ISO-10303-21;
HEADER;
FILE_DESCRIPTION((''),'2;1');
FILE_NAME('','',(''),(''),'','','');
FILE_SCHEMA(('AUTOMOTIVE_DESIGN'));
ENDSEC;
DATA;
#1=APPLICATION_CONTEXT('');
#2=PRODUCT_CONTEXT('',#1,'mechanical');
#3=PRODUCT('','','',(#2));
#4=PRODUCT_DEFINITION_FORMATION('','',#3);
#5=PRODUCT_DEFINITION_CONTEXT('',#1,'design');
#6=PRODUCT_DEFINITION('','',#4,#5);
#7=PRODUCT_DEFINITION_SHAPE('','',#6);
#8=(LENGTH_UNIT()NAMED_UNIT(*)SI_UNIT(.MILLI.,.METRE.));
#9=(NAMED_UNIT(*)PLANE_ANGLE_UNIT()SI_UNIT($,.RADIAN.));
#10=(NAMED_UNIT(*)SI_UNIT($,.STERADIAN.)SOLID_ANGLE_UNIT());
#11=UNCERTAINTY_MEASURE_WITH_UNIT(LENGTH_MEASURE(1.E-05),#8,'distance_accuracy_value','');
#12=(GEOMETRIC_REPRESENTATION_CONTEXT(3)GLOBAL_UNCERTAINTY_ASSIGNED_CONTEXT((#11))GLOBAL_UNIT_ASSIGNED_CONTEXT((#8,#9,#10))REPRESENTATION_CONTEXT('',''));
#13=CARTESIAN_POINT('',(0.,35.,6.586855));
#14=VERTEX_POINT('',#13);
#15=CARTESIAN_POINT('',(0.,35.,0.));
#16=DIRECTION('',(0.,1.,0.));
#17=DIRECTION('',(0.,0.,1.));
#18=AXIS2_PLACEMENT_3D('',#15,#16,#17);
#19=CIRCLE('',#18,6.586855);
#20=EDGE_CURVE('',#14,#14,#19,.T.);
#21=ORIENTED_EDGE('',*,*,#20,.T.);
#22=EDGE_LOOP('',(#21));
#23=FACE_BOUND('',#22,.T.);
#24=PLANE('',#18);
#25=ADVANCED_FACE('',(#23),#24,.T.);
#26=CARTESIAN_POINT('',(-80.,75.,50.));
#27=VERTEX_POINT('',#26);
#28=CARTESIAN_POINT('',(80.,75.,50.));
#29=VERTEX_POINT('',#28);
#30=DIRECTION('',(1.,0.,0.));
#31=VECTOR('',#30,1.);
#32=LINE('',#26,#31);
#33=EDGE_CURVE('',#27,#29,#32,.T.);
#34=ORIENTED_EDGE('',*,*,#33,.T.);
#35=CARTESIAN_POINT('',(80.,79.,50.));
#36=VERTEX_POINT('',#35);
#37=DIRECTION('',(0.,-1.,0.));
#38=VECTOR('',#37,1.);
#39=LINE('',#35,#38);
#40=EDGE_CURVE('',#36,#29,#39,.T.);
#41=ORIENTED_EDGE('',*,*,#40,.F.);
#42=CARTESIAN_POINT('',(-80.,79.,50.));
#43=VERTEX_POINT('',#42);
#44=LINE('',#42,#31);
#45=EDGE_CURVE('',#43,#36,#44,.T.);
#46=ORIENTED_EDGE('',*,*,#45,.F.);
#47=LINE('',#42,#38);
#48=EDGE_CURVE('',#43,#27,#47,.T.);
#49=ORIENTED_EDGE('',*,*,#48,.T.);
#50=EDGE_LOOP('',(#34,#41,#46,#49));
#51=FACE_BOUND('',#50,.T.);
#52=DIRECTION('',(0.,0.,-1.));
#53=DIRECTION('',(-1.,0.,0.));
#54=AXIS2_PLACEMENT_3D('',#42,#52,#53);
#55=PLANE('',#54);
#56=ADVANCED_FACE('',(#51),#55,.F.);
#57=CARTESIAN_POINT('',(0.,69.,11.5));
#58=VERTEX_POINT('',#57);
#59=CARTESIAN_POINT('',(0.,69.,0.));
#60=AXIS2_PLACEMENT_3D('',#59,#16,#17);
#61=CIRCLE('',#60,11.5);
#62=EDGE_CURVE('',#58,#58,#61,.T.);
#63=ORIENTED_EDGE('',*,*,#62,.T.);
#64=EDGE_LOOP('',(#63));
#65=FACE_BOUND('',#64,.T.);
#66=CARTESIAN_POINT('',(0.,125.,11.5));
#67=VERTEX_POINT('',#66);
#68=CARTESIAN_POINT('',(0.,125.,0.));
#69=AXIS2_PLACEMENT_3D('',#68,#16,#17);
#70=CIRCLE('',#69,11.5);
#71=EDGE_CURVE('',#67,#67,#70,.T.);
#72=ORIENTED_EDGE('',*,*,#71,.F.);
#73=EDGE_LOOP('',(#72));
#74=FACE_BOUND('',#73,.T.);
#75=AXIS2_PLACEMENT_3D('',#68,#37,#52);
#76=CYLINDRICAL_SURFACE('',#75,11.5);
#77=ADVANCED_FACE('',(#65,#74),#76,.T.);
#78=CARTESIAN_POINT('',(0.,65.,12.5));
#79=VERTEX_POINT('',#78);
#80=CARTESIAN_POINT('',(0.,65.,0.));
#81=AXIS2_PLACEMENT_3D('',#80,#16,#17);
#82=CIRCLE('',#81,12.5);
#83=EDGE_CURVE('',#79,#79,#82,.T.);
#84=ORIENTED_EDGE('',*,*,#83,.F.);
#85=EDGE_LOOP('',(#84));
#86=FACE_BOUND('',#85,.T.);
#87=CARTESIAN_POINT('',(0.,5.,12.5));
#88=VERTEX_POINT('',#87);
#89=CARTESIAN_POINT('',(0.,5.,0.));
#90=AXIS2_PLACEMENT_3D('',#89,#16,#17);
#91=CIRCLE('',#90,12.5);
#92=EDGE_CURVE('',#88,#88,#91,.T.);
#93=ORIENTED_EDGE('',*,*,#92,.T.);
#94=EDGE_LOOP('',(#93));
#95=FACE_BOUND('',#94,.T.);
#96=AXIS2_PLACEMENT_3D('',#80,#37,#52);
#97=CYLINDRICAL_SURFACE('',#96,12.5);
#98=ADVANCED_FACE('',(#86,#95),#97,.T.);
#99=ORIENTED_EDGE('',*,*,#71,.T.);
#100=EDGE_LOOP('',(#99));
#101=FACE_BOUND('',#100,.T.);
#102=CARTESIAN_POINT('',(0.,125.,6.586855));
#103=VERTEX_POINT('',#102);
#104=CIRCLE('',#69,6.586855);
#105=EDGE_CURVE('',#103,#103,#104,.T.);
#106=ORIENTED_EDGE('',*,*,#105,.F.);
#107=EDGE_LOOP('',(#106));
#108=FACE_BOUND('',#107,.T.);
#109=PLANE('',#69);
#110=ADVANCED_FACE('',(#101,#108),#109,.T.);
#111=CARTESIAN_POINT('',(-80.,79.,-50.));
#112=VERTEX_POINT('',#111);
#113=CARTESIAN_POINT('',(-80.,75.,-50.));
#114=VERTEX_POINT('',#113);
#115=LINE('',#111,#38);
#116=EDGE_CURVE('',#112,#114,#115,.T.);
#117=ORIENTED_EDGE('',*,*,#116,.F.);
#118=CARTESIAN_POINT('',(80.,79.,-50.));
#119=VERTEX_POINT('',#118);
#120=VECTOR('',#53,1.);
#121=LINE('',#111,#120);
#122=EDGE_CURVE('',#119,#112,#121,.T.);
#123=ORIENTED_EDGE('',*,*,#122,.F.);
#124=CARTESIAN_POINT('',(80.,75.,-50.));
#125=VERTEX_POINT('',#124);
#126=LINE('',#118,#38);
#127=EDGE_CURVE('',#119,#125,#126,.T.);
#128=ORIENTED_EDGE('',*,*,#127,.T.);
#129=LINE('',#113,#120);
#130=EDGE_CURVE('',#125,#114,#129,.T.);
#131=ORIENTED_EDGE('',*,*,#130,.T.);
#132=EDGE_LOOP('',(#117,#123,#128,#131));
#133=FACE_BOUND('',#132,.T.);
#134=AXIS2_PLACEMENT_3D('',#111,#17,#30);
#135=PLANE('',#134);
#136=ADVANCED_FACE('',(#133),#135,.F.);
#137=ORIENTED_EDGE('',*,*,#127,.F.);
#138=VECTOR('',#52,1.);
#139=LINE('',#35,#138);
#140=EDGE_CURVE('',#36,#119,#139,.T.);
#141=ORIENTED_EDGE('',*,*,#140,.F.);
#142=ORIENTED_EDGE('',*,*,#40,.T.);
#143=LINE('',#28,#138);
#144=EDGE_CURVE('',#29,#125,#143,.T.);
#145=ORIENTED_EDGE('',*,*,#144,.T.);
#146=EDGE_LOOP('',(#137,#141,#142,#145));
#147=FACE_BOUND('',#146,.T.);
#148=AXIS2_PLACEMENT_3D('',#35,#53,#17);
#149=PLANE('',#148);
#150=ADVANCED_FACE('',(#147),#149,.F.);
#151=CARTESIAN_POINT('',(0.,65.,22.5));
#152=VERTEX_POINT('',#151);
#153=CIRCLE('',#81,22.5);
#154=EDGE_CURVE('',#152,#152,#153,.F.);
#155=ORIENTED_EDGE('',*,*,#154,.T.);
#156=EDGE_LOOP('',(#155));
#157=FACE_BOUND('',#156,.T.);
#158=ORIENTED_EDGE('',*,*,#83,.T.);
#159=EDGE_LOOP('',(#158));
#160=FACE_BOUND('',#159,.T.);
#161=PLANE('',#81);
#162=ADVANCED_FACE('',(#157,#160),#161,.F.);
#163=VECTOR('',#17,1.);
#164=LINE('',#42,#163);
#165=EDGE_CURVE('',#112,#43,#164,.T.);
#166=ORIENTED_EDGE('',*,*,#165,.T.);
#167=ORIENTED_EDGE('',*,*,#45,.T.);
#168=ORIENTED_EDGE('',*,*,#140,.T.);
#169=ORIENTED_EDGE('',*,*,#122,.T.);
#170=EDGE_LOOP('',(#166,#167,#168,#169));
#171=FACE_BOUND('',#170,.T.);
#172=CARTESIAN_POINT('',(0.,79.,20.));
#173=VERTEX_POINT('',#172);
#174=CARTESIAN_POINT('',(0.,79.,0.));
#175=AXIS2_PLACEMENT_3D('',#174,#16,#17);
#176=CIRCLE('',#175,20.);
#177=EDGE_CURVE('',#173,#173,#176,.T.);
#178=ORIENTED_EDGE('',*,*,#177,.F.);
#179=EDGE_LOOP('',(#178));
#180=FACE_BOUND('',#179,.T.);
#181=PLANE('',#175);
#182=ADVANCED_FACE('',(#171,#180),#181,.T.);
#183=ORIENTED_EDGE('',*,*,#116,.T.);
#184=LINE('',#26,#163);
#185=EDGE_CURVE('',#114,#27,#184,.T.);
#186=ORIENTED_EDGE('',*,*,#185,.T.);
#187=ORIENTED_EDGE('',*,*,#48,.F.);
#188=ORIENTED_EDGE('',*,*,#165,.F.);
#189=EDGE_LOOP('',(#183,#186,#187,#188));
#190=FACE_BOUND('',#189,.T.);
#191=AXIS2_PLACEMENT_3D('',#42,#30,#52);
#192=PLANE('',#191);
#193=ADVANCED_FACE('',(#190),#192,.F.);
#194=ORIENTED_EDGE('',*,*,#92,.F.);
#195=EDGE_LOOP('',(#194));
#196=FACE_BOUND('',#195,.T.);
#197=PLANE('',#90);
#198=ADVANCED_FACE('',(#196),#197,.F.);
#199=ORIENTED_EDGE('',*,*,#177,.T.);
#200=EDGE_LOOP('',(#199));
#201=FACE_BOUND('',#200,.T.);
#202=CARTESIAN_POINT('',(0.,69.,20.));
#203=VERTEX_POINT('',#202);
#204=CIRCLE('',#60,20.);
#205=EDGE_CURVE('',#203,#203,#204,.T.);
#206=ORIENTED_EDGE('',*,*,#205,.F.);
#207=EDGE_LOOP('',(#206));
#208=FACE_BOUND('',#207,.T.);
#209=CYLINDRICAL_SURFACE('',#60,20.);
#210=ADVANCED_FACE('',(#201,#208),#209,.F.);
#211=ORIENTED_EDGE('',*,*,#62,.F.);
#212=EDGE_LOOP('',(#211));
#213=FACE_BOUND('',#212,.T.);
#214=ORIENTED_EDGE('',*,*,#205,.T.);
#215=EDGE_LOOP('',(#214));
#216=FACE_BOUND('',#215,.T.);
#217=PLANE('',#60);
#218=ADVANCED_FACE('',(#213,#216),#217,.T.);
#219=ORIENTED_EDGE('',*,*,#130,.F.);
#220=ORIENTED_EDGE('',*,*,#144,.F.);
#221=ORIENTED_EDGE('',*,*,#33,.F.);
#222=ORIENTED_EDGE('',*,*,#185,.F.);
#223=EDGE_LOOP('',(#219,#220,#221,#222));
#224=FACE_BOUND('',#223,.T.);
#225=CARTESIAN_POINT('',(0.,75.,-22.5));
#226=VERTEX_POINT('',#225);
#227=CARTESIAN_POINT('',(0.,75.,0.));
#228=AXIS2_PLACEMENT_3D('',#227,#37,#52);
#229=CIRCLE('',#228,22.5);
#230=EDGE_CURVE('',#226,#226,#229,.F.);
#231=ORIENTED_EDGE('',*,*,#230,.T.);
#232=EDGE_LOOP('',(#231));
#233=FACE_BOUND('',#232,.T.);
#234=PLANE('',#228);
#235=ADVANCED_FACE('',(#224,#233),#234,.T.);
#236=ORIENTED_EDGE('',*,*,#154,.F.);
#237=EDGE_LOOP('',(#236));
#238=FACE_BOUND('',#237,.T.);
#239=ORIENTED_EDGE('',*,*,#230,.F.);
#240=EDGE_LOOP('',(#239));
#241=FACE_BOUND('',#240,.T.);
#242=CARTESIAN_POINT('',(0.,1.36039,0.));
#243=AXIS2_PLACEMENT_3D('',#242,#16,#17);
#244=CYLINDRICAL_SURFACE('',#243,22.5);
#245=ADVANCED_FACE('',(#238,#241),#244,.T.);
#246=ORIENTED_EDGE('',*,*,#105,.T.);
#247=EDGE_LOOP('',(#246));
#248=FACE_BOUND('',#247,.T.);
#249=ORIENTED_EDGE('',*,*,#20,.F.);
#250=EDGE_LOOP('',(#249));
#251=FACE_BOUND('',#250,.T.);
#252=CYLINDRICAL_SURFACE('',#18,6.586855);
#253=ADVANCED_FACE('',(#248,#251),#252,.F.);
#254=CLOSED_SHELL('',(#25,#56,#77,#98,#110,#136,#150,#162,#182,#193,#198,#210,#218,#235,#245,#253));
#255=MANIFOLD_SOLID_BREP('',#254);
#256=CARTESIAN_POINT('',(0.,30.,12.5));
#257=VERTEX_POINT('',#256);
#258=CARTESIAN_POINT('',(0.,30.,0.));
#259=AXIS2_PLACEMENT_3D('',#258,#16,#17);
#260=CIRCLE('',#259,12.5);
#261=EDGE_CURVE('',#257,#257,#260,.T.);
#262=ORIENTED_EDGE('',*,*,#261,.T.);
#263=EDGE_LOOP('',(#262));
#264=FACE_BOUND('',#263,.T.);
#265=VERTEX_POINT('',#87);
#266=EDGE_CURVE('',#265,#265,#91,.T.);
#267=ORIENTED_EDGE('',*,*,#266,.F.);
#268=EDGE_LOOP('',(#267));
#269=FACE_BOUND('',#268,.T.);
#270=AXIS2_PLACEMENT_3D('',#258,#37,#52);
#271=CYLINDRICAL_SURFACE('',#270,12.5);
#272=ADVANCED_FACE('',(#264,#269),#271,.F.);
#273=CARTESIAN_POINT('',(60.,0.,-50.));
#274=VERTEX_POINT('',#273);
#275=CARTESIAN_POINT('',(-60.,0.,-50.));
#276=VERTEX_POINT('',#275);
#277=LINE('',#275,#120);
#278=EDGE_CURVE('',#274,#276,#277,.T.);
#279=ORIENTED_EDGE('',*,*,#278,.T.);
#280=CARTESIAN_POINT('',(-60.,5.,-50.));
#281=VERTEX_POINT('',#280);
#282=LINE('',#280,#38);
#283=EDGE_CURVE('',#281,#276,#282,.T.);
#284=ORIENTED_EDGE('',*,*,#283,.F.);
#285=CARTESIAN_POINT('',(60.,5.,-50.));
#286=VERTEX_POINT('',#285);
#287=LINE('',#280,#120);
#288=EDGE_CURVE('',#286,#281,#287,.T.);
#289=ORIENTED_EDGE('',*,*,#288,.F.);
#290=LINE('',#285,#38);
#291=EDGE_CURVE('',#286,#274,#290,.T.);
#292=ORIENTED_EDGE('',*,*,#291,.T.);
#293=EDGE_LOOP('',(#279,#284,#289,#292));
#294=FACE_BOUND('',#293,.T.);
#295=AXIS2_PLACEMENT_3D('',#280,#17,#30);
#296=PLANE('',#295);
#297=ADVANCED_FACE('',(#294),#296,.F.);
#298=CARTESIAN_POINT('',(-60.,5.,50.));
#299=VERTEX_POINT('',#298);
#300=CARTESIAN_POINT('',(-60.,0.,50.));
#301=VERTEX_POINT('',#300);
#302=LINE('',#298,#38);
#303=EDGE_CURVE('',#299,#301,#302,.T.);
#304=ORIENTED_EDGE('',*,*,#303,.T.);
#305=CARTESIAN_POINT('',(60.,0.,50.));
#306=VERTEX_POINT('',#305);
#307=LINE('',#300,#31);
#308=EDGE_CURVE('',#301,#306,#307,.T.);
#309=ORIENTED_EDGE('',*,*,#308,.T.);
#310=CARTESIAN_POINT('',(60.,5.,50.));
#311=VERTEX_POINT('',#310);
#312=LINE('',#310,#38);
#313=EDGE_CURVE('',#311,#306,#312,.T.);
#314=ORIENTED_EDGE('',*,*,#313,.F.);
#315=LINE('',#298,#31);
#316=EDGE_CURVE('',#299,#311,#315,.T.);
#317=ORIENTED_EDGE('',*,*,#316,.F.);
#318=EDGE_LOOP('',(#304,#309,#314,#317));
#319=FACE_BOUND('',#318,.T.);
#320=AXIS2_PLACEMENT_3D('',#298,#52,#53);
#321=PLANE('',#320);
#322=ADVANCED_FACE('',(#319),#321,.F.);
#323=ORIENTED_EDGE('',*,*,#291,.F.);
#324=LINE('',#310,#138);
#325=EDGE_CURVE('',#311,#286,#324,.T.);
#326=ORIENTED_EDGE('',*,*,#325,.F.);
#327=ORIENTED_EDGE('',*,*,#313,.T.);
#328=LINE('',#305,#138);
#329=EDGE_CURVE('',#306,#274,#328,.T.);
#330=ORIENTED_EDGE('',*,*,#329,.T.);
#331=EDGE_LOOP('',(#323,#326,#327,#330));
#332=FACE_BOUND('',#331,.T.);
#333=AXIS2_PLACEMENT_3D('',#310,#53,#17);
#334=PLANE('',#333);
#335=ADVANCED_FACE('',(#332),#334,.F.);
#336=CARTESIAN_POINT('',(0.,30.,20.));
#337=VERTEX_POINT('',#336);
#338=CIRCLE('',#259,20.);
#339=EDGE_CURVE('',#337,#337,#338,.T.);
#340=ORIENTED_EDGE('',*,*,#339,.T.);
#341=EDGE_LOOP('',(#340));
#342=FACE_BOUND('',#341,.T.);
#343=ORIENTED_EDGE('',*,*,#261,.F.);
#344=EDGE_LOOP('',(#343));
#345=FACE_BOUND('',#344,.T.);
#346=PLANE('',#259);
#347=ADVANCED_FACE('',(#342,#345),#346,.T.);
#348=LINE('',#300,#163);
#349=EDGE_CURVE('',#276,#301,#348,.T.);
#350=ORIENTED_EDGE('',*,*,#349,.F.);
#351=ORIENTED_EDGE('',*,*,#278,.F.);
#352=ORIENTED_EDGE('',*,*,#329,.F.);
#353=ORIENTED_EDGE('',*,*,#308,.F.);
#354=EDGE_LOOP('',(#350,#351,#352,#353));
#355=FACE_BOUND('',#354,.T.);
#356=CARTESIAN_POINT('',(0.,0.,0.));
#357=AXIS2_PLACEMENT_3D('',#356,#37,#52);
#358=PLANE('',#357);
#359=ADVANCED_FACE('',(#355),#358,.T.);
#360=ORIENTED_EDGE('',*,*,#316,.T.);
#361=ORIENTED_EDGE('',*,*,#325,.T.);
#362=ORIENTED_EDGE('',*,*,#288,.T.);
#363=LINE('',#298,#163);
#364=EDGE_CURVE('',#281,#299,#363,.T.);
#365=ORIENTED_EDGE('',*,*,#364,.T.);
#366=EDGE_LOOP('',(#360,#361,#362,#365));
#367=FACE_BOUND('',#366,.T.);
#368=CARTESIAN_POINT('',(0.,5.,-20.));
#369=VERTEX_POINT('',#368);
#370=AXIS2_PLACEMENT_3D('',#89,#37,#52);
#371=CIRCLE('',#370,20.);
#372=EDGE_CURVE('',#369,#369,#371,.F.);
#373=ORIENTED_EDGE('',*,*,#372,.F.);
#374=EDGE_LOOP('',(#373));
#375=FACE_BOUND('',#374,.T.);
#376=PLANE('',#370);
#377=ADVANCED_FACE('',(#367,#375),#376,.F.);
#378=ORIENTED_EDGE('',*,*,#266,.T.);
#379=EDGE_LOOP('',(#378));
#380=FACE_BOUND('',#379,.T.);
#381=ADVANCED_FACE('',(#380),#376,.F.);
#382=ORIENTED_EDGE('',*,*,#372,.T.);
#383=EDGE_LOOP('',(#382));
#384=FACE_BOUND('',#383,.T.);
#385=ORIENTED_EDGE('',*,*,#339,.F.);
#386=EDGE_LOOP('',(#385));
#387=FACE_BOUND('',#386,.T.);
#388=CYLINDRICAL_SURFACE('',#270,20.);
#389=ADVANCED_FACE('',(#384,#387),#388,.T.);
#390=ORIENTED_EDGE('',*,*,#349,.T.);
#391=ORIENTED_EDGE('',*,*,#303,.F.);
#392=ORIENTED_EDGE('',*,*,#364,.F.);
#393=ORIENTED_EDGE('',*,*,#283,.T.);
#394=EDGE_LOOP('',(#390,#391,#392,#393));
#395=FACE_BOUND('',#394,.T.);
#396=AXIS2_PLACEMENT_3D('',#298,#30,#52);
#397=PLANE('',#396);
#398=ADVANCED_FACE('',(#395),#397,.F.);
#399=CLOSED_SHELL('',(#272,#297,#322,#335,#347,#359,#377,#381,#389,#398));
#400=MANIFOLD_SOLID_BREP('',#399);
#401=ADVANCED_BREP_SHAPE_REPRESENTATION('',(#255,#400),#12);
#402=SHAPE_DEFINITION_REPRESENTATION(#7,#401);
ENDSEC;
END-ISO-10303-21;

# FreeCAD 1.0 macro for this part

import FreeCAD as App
import Part
import Sketcher

V = App.Vector
Q = App.Units.Quantity

doc = App.newDocument("Part")
body = doc.addObject("PartDesign::Body", "Body")

# Sketch on XZ plane
sketch1 = body.newObject("Sketcher::SketchObject", "Sketch")
sketch1.AttachmentSupport = (doc.getObject("XZ_Plane"), [""])
sketch1.MapMode = "FlatFace"
sketch1.addGeometry([
    Part.LineSegment(V(-60, -50, 0), V(-60, 50, 0)),
    Part.LineSegment(V(-60, 50, 0), V(60, 50, 0)),
    Part.LineSegment(V(60, 50, 0), V(60, -50, 0)),
    Part.LineSegment(V(60, -50, 0), V(-60, -50, 0)),
], False)
sketch1.addConstraint([
    Sketcher.Constraint("Coincident", 0, 2, 1, 1),
    Sketcher.Constraint("Coincident", 1, 2, 2, 1),
    Sketcher.Constraint("Coincident", 2, 2, 3, 1),
    Sketcher.Constraint("Coincident", 3, 2, 0, 1),
    Sketcher.Constraint("Vertical", 0),
    Sketcher.Constraint("Horizontal", 1),
    Sketcher.Constraint("Vertical", 2),
    Sketcher.Constraint("Horizontal", 3),
    Sketcher.Constraint("Symmetric", 0, 2, 2, 2, -1, 1),
    Sketcher.Constraint("DistanceX", 1, 1, 1, 2, Q("120 mm")),
    Sketcher.Constraint("DistanceY", 0, 1, 0, 2, Q("100 mm")),
])
pad1 = body.newObject("PartDesign::Pad", "Pad")
pad1.Profile = sketch1
pad1.Length = 5
pad1.Reversed = True

# Sketch on XZ plane
sketch2 = body.newObject("Sketcher::SketchObject", "Sketch001")
sketch2.AttachmentSupport = (doc.getObject("XZ_Plane"), [""])
sketch2.MapMode = "FlatFace"
sketch2.AttachmentOffset = App.Placement(V(0, 0, -5), App.Rotation())
sketch2.addGeometry([
    Part.Circle(V(0, 0, 0), V(0, 0, 1), 20),
    Part.Circle(V(0, 0, 0), V(0, 0, 1), 12),
], False)
sketch2.addConstraint([
    Sketcher.Constraint("Coincident", 0, 3, -1, 1),
    Sketcher.Constraint("Coincident", 1, 3, -1, 1),
    Sketcher.Constraint("Diameter", 0, Q("40 mm")),
    Sketcher.Constraint("Diameter", 1, Q("25 mm")),
])
pad2 = body.newObject("PartDesign::Pad", "Pad001")
pad2.Profile = sketch2
pad2.Length = 25
pad2.Reversed = True
body2 = doc.addObject("PartDesign::Body", "Body001")

# Sketch on XZ plane
sketch3 = body2.newObject("Sketcher::SketchObject", "Sketch002")
sketch3.AttachmentSupport = (doc.getObject("XZ_Plane001"), [""])
sketch3.MapMode = "FlatFace"
sketch3.AttachmentOffset = App.Placement(V(0, 0, -5), App.Rotation())
sketch3.addGeometry(Part.Circle(V(0, 0, 0), V(0, 0, 1), 12), False)
sketch3.addConstraint([
    Sketcher.Constraint("Coincident", 0, 3, -1, 1),
    Sketcher.Constraint("Diameter", 0, Q("25 mm")),
])
pad3 = body2.newObject("PartDesign::Pad", "Pad002")
pad3.Profile = sketch3
pad3.Length = 60
pad3.Reversed = True

# Sketch on XZ plane
sketch4 = body2.newObject("Sketcher::SketchObject", "Sketch003")
sketch4.AttachmentSupport = (doc.getObject("XZ_Plane001"), [""])
sketch4.MapMode = "FlatFace"
sketch4.AttachmentOffset = App.Placement(V(0, 0, -65), App.Rotation())
sketch4.addGeometry(Part.Circle(V(0, 0, 0), V(0, 0, 1), 7), False)
sketch4.addConstraint([
    Sketcher.Constraint("Coincident", 0, 3, -1, 1),
    Sketcher.Constraint("Diameter", 0, Q("13.173711 mm")),
])
pocket1 = body2.newObject("PartDesign::Pocket", "Pocket")
pocket1.Profile = sketch4
pocket1.Length = 30
pocket1.Reversed = True

# Sketch on XZ plane
sketch5 = body2.newObject("Sketcher::SketchObject", "Sketch004")
sketch5.AttachmentSupport = (doc.getObject("XZ_Plane001"), [""])
sketch5.MapMode = "FlatFace"
sketch5.AttachmentOffset = App.Placement(V(0, 0, -65), App.Rotation())
sketch5.addGeometry([
    Part.Circle(V(0, 0, 0), V(0, 0, 1), 12),
    Part.Circle(V(0, 0, 0), V(0, 0, 1), 7),
], False)
sketch5.addConstraint([
    Sketcher.Constraint("Coincident", 0, 3, -1, 1),
    Sketcher.Constraint("Coincident", 1, 3, -1, 1),
    Sketcher.Constraint("Diameter", 0, Q("23 mm")),
    Sketcher.Constraint("Diameter", 1, Q("13.173711 mm")),
])
pad4 = body2.newObject("PartDesign::Pad", "Pad003")
pad4.Profile = sketch5
pad4.Length = 60
pad4.Reversed = True
body3 = doc.addObject("PartDesign::Body", "Body002")

# Sketch on XZ plane
sketch6 = body3.newObject("Sketcher::SketchObject", "Sketch005")
sketch6.AttachmentSupport = (doc.getObject("XZ_Plane002"), [""])
sketch6.MapMode = "FlatFace"
sketch6.AttachmentOffset = App.Placement(V(0, 0, -75), App.Rotation())
sketch6.addGeometry([
    Part.LineSegment(V(-80, -50, 0), V(-80, 50, 0)),  # 0
    Part.LineSegment(V(-80, 50, 0), V(80, 50, 0)),  # 1
    Part.LineSegment(V(80, 50, 0), V(80, -50, 0)),  # 2
    Part.LineSegment(V(80, -50, 0), V(-80, -50, 0)),  # 3
    Part.Circle(V(0, 0, 0), V(0, 0, 1), 12),  # 4
], False)
sketch6.addConstraint([
    Sketcher.Constraint("Coincident", 0, 2, 1, 1),
    Sketcher.Constraint("Coincident", 1, 2, 2, 1),
    Sketcher.Constraint("Coincident", 2, 2, 3, 1),
    Sketcher.Constraint("Coincident", 3, 2, 0, 1),
    Sketcher.Constraint("Vertical", 0),
    Sketcher.Constraint("Horizontal", 1),
    Sketcher.Constraint("Vertical", 2),
    Sketcher.Constraint("Horizontal", 3),
    Sketcher.Constraint("Coincident", 4, 3, -1, 1),
    Sketcher.Constraint("Symmetric", 0, 2, 2, 2, -1, 1),
    Sketcher.Constraint("Diameter", 4, Q("25 mm")),
    Sketcher.Constraint("DistanceX", 1, 1, 1, 2, Q("160 mm")),
    Sketcher.Constraint("DistanceY", 0, 1, 0, 2, Q("100 mm")),
])
pad5 = body3.newObject("PartDesign::Pad", "Pad004")
pad5.Profile = sketch6
pad5.Length = 4
pad5.Reversed = True
body2.AllowCompound = True
doc.recompute()

boolean = body2.newObject("PartDesign::Boolean", "Boolean")
boolean.Type = "Fuse"
boolean.addObjects([body3])

# Sketch on XZ plane
sketch7 = body2.newObject("Sketcher::SketchObject", "Sketch006")
sketch7.AttachmentSupport = (doc.getObject("XZ_Plane001"), [""])
sketch7.MapMode = "FlatFace"
sketch7.AttachmentOffset = App.Placement(V(0, 0, -79), App.Rotation())
sketch7.addGeometry([
    Part.Circle(V(0, 0, 0), V(0, 0, 1), 22),
    Part.Circle(V(0, 0, 0), V(0, 0, 1), 12),
], False)
sketch7.addConstraint([
    Sketcher.Constraint("Coincident", 0, 3, -1, 1),
    Sketcher.Constraint("Coincident", 1, 3, -1, 1),
    Sketcher.Constraint("Diameter", 0, Q("45 mm")),
    Sketcher.Constraint("Diameter", 1, Q("23 mm")),
])
pad6 = body2.newObject("PartDesign::Pad", "Pad005")
pad6.Profile = sketch7
pad6.Length = 14

# Sketch on XZ plane
sketch8 = body2.newObject("Sketcher::SketchObject", "Sketch007")
sketch8.AttachmentSupport = (doc.getObject("XZ_Plane001"), [""])
sketch8.MapMode = "FlatFace"
sketch8.AttachmentOffset = App.Placement(V(0, 0, -69), App.Rotation())
sketch8.addGeometry([
    Part.Circle(V(0, 0, 0), V(0, 0, 1), 20),
    Part.Circle(V(0, 0, 0), V(0, 0, 1), 12),
], False)
sketch8.addConstraint([
    Sketcher.Constraint("Coincident", 0, 3, -1, 1),
    Sketcher.Constraint("Coincident", 1, 3, -1, 1),
    Sketcher.Constraint("Diameter", 0, Q("40 mm")),
    Sketcher.Constraint("Diameter", 1, Q("23 mm")),
])
pocket2 = body2.newObject("PartDesign::Pocket", "Pocket001")
pocket2.Profile = sketch8
pocket2.Length = 10

doc.recompute()
